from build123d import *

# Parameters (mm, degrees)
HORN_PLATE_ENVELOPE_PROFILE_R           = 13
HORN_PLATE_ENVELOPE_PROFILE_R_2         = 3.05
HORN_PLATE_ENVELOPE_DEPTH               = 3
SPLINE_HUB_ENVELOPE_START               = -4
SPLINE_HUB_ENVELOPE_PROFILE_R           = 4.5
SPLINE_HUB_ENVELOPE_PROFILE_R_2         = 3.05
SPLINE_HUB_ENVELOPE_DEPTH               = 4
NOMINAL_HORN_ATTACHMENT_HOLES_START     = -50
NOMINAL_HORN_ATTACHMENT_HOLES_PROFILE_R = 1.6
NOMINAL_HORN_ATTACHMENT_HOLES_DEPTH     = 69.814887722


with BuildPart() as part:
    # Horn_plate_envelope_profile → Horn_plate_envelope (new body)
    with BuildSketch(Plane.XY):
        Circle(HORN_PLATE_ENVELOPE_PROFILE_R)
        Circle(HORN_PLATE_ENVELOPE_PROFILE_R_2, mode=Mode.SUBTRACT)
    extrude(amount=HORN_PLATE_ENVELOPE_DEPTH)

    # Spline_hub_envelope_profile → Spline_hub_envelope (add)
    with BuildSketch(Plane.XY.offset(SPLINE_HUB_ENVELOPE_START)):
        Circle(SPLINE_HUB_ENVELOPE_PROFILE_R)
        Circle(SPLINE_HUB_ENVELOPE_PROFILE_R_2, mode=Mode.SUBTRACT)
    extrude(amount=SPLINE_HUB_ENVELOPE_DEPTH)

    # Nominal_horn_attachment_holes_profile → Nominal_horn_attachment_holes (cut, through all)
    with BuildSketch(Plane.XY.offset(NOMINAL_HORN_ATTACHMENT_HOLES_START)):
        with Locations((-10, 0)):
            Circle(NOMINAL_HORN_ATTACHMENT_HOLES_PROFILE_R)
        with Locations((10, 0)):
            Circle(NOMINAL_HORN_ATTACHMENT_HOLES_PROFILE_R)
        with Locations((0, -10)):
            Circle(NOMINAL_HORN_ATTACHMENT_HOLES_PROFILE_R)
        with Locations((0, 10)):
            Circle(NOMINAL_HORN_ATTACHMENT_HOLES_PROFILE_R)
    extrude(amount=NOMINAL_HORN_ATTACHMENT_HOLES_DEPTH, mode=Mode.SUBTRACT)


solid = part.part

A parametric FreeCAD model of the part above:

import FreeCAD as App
import Part
import Sketcher

V = App.Vector
Q = App.Units.Quantity

doc = App.newDocument("Part")
params = doc.addObject("Spreadsheet::Sheet", "Params")
for row, (alias, value) in enumerate([
    ("sketch1_diameter", "26 mm"),
    ("sketch1_diameter2", "6.1 mm"),
    ("pad1_length", "3 mm"),
    ("sketch2_diameter", "9 mm"),
    ("sketch2_diameter2", "6.1 mm"),
    ("pad2_length", "4 mm"),
    ("sketch3_diameter", "3.2 mm"),
], start=1):
    params.set(f"A{row}", alias)
    params.set(f"B{row}", "=" + value)
    params.setAlias(f"B{row}", alias)

body = doc.addObject("PartDesign::Body", "Body")

sketch1 = body.newObject("Sketcher::SketchObject", "Sketch")
sketch1.AttachmentSupport = (doc.getObject("XY_Plane"), [""])
sketch1.MapMode = "FlatFace"
sketch1.addGeometry(Part.Circle(V(0, 0, 0), V(0, 0, 1), 13), False)
sketch1.addGeometry(Part.Circle(V(0, 0, 0), V(0, 0, 1), 3.05), False)
sketch1.addConstraint(Sketcher.Constraint("Coincident", 0, 3, -1, 1))
sketch1.addConstraint(Sketcher.Constraint("Coincident", 1, 3, -1, 1))
sketch1.addConstraint(Sketcher.Constraint("Diameter", 0, Q("26 mm")))
sketch1.addConstraint(Sketcher.Constraint("Diameter", 1, Q("6.1 mm")))
sketch1.setExpression("Constraints[2]", "Params.sketch1_diameter")
sketch1.setExpression("Constraints[3]", "Params.sketch1_diameter2")
pad1 = body.newObject("PartDesign::Pad", "Pad")
pad1.Profile = sketch1
pad1.setExpression("Length", "Params.pad1_length")

sketch2 = body.newObject("Sketcher::SketchObject", "Sketch001")
sketch2.AttachmentSupport = (doc.getObject("XY_Plane"), [""])
sketch2.MapMode = "FlatFace"
sketch2.AttachmentOffset = App.Placement(V(0, 0, -4), App.Rotation())
sketch2.addGeometry(Part.Circle(V(0, 0, 0), V(0, 0, 1), 4.5), False)
sketch2.addGeometry(Part.Circle(V(0, 0, 0), V(0, 0, 1), 3.05), False)
sketch2.addConstraint(Sketcher.Constraint("Coincident", 0, 3, -1, 1))
sketch2.addConstraint(Sketcher.Constraint("Coincident", 1, 3, -1, 1))
sketch2.addConstraint(Sketcher.Constraint("Diameter", 0, Q("9 mm")))
sketch2.addConstraint(Sketcher.Constraint("Diameter", 1, Q("6.1 mm")))
sketch2.setExpression("Constraints[2]", "Params.sketch2_diameter")
sketch2.setExpression("Constraints[3]", "Params.sketch2_diameter2")
pad2 = body.newObject("PartDesign::Pad", "Pad001")
pad2.Profile = sketch2
pad2.setExpression("Length", "Params.pad2_length")

sketch3 = body.newObject("Sketcher::SketchObject", "Sketch002")
sketch3.AttachmentSupport = (doc.getObject("XY_Plane"), [""])
sketch3.MapMode = "FlatFace"
sketch3.AttachmentOffset = App.Placement(V(0, 0, -50), App.Rotation())
sketch3.addGeometry(Part.Circle(V(-10, 0, 0), V(0, 0, 1), 1.6), False)
sketch3.addGeometry(Part.Circle(V(10, 0, 0), V(0, 0, 1), 1.6), False)
sketch3.addGeometry(Part.Circle(V(0, -10, 0), V(0, 0, 1), 1.6), False)
sketch3.addGeometry(Part.Circle(V(0, 10, 0), V(0, 0, 1), 1.6), False)
sketch3.addConstraint(Sketcher.Constraint("Equal", 0, 1))
sketch3.addConstraint(Sketcher.Constraint("Equal", 1, 2))
sketch3.addConstraint(Sketcher.Constraint("Equal", 2, 3))
sketch3.addConstraint(Sketcher.Constraint("Symmetric", 0, 3, 1, 3, -1, 1))
sketch3.addConstraint(Sketcher.Constraint("Symmetric", 2, 3, 3, 3, -1, 1))
sketch3.addConstraint(Sketcher.Constraint("PointOnObject", 0, 3, -1))
sketch3.addConstraint(Sketcher.Constraint("PointOnObject", 2, 3, -2))
sketch3.addConstraint(Sketcher.Constraint("Diameter", 0, Q("3.2 mm")))
sketch3.addConstraint(Sketcher.Constraint("DistanceX", 0, 3, -1, 1, Q("10 mm")))
sketch3.addConstraint(Sketcher.Constraint("DistanceY", 2, 3, -1, 1, Q("10 mm")))
sketch3.setExpression("Constraints[7]", "Params.sketch3_diameter")
pocket1 = body.newObject("PartDesign::Pocket", "Pocket")
pocket1.Profile = sketch3
pocket1.Type = "ThroughAll"
pocket1.Reversed = True

doc.recompute()
